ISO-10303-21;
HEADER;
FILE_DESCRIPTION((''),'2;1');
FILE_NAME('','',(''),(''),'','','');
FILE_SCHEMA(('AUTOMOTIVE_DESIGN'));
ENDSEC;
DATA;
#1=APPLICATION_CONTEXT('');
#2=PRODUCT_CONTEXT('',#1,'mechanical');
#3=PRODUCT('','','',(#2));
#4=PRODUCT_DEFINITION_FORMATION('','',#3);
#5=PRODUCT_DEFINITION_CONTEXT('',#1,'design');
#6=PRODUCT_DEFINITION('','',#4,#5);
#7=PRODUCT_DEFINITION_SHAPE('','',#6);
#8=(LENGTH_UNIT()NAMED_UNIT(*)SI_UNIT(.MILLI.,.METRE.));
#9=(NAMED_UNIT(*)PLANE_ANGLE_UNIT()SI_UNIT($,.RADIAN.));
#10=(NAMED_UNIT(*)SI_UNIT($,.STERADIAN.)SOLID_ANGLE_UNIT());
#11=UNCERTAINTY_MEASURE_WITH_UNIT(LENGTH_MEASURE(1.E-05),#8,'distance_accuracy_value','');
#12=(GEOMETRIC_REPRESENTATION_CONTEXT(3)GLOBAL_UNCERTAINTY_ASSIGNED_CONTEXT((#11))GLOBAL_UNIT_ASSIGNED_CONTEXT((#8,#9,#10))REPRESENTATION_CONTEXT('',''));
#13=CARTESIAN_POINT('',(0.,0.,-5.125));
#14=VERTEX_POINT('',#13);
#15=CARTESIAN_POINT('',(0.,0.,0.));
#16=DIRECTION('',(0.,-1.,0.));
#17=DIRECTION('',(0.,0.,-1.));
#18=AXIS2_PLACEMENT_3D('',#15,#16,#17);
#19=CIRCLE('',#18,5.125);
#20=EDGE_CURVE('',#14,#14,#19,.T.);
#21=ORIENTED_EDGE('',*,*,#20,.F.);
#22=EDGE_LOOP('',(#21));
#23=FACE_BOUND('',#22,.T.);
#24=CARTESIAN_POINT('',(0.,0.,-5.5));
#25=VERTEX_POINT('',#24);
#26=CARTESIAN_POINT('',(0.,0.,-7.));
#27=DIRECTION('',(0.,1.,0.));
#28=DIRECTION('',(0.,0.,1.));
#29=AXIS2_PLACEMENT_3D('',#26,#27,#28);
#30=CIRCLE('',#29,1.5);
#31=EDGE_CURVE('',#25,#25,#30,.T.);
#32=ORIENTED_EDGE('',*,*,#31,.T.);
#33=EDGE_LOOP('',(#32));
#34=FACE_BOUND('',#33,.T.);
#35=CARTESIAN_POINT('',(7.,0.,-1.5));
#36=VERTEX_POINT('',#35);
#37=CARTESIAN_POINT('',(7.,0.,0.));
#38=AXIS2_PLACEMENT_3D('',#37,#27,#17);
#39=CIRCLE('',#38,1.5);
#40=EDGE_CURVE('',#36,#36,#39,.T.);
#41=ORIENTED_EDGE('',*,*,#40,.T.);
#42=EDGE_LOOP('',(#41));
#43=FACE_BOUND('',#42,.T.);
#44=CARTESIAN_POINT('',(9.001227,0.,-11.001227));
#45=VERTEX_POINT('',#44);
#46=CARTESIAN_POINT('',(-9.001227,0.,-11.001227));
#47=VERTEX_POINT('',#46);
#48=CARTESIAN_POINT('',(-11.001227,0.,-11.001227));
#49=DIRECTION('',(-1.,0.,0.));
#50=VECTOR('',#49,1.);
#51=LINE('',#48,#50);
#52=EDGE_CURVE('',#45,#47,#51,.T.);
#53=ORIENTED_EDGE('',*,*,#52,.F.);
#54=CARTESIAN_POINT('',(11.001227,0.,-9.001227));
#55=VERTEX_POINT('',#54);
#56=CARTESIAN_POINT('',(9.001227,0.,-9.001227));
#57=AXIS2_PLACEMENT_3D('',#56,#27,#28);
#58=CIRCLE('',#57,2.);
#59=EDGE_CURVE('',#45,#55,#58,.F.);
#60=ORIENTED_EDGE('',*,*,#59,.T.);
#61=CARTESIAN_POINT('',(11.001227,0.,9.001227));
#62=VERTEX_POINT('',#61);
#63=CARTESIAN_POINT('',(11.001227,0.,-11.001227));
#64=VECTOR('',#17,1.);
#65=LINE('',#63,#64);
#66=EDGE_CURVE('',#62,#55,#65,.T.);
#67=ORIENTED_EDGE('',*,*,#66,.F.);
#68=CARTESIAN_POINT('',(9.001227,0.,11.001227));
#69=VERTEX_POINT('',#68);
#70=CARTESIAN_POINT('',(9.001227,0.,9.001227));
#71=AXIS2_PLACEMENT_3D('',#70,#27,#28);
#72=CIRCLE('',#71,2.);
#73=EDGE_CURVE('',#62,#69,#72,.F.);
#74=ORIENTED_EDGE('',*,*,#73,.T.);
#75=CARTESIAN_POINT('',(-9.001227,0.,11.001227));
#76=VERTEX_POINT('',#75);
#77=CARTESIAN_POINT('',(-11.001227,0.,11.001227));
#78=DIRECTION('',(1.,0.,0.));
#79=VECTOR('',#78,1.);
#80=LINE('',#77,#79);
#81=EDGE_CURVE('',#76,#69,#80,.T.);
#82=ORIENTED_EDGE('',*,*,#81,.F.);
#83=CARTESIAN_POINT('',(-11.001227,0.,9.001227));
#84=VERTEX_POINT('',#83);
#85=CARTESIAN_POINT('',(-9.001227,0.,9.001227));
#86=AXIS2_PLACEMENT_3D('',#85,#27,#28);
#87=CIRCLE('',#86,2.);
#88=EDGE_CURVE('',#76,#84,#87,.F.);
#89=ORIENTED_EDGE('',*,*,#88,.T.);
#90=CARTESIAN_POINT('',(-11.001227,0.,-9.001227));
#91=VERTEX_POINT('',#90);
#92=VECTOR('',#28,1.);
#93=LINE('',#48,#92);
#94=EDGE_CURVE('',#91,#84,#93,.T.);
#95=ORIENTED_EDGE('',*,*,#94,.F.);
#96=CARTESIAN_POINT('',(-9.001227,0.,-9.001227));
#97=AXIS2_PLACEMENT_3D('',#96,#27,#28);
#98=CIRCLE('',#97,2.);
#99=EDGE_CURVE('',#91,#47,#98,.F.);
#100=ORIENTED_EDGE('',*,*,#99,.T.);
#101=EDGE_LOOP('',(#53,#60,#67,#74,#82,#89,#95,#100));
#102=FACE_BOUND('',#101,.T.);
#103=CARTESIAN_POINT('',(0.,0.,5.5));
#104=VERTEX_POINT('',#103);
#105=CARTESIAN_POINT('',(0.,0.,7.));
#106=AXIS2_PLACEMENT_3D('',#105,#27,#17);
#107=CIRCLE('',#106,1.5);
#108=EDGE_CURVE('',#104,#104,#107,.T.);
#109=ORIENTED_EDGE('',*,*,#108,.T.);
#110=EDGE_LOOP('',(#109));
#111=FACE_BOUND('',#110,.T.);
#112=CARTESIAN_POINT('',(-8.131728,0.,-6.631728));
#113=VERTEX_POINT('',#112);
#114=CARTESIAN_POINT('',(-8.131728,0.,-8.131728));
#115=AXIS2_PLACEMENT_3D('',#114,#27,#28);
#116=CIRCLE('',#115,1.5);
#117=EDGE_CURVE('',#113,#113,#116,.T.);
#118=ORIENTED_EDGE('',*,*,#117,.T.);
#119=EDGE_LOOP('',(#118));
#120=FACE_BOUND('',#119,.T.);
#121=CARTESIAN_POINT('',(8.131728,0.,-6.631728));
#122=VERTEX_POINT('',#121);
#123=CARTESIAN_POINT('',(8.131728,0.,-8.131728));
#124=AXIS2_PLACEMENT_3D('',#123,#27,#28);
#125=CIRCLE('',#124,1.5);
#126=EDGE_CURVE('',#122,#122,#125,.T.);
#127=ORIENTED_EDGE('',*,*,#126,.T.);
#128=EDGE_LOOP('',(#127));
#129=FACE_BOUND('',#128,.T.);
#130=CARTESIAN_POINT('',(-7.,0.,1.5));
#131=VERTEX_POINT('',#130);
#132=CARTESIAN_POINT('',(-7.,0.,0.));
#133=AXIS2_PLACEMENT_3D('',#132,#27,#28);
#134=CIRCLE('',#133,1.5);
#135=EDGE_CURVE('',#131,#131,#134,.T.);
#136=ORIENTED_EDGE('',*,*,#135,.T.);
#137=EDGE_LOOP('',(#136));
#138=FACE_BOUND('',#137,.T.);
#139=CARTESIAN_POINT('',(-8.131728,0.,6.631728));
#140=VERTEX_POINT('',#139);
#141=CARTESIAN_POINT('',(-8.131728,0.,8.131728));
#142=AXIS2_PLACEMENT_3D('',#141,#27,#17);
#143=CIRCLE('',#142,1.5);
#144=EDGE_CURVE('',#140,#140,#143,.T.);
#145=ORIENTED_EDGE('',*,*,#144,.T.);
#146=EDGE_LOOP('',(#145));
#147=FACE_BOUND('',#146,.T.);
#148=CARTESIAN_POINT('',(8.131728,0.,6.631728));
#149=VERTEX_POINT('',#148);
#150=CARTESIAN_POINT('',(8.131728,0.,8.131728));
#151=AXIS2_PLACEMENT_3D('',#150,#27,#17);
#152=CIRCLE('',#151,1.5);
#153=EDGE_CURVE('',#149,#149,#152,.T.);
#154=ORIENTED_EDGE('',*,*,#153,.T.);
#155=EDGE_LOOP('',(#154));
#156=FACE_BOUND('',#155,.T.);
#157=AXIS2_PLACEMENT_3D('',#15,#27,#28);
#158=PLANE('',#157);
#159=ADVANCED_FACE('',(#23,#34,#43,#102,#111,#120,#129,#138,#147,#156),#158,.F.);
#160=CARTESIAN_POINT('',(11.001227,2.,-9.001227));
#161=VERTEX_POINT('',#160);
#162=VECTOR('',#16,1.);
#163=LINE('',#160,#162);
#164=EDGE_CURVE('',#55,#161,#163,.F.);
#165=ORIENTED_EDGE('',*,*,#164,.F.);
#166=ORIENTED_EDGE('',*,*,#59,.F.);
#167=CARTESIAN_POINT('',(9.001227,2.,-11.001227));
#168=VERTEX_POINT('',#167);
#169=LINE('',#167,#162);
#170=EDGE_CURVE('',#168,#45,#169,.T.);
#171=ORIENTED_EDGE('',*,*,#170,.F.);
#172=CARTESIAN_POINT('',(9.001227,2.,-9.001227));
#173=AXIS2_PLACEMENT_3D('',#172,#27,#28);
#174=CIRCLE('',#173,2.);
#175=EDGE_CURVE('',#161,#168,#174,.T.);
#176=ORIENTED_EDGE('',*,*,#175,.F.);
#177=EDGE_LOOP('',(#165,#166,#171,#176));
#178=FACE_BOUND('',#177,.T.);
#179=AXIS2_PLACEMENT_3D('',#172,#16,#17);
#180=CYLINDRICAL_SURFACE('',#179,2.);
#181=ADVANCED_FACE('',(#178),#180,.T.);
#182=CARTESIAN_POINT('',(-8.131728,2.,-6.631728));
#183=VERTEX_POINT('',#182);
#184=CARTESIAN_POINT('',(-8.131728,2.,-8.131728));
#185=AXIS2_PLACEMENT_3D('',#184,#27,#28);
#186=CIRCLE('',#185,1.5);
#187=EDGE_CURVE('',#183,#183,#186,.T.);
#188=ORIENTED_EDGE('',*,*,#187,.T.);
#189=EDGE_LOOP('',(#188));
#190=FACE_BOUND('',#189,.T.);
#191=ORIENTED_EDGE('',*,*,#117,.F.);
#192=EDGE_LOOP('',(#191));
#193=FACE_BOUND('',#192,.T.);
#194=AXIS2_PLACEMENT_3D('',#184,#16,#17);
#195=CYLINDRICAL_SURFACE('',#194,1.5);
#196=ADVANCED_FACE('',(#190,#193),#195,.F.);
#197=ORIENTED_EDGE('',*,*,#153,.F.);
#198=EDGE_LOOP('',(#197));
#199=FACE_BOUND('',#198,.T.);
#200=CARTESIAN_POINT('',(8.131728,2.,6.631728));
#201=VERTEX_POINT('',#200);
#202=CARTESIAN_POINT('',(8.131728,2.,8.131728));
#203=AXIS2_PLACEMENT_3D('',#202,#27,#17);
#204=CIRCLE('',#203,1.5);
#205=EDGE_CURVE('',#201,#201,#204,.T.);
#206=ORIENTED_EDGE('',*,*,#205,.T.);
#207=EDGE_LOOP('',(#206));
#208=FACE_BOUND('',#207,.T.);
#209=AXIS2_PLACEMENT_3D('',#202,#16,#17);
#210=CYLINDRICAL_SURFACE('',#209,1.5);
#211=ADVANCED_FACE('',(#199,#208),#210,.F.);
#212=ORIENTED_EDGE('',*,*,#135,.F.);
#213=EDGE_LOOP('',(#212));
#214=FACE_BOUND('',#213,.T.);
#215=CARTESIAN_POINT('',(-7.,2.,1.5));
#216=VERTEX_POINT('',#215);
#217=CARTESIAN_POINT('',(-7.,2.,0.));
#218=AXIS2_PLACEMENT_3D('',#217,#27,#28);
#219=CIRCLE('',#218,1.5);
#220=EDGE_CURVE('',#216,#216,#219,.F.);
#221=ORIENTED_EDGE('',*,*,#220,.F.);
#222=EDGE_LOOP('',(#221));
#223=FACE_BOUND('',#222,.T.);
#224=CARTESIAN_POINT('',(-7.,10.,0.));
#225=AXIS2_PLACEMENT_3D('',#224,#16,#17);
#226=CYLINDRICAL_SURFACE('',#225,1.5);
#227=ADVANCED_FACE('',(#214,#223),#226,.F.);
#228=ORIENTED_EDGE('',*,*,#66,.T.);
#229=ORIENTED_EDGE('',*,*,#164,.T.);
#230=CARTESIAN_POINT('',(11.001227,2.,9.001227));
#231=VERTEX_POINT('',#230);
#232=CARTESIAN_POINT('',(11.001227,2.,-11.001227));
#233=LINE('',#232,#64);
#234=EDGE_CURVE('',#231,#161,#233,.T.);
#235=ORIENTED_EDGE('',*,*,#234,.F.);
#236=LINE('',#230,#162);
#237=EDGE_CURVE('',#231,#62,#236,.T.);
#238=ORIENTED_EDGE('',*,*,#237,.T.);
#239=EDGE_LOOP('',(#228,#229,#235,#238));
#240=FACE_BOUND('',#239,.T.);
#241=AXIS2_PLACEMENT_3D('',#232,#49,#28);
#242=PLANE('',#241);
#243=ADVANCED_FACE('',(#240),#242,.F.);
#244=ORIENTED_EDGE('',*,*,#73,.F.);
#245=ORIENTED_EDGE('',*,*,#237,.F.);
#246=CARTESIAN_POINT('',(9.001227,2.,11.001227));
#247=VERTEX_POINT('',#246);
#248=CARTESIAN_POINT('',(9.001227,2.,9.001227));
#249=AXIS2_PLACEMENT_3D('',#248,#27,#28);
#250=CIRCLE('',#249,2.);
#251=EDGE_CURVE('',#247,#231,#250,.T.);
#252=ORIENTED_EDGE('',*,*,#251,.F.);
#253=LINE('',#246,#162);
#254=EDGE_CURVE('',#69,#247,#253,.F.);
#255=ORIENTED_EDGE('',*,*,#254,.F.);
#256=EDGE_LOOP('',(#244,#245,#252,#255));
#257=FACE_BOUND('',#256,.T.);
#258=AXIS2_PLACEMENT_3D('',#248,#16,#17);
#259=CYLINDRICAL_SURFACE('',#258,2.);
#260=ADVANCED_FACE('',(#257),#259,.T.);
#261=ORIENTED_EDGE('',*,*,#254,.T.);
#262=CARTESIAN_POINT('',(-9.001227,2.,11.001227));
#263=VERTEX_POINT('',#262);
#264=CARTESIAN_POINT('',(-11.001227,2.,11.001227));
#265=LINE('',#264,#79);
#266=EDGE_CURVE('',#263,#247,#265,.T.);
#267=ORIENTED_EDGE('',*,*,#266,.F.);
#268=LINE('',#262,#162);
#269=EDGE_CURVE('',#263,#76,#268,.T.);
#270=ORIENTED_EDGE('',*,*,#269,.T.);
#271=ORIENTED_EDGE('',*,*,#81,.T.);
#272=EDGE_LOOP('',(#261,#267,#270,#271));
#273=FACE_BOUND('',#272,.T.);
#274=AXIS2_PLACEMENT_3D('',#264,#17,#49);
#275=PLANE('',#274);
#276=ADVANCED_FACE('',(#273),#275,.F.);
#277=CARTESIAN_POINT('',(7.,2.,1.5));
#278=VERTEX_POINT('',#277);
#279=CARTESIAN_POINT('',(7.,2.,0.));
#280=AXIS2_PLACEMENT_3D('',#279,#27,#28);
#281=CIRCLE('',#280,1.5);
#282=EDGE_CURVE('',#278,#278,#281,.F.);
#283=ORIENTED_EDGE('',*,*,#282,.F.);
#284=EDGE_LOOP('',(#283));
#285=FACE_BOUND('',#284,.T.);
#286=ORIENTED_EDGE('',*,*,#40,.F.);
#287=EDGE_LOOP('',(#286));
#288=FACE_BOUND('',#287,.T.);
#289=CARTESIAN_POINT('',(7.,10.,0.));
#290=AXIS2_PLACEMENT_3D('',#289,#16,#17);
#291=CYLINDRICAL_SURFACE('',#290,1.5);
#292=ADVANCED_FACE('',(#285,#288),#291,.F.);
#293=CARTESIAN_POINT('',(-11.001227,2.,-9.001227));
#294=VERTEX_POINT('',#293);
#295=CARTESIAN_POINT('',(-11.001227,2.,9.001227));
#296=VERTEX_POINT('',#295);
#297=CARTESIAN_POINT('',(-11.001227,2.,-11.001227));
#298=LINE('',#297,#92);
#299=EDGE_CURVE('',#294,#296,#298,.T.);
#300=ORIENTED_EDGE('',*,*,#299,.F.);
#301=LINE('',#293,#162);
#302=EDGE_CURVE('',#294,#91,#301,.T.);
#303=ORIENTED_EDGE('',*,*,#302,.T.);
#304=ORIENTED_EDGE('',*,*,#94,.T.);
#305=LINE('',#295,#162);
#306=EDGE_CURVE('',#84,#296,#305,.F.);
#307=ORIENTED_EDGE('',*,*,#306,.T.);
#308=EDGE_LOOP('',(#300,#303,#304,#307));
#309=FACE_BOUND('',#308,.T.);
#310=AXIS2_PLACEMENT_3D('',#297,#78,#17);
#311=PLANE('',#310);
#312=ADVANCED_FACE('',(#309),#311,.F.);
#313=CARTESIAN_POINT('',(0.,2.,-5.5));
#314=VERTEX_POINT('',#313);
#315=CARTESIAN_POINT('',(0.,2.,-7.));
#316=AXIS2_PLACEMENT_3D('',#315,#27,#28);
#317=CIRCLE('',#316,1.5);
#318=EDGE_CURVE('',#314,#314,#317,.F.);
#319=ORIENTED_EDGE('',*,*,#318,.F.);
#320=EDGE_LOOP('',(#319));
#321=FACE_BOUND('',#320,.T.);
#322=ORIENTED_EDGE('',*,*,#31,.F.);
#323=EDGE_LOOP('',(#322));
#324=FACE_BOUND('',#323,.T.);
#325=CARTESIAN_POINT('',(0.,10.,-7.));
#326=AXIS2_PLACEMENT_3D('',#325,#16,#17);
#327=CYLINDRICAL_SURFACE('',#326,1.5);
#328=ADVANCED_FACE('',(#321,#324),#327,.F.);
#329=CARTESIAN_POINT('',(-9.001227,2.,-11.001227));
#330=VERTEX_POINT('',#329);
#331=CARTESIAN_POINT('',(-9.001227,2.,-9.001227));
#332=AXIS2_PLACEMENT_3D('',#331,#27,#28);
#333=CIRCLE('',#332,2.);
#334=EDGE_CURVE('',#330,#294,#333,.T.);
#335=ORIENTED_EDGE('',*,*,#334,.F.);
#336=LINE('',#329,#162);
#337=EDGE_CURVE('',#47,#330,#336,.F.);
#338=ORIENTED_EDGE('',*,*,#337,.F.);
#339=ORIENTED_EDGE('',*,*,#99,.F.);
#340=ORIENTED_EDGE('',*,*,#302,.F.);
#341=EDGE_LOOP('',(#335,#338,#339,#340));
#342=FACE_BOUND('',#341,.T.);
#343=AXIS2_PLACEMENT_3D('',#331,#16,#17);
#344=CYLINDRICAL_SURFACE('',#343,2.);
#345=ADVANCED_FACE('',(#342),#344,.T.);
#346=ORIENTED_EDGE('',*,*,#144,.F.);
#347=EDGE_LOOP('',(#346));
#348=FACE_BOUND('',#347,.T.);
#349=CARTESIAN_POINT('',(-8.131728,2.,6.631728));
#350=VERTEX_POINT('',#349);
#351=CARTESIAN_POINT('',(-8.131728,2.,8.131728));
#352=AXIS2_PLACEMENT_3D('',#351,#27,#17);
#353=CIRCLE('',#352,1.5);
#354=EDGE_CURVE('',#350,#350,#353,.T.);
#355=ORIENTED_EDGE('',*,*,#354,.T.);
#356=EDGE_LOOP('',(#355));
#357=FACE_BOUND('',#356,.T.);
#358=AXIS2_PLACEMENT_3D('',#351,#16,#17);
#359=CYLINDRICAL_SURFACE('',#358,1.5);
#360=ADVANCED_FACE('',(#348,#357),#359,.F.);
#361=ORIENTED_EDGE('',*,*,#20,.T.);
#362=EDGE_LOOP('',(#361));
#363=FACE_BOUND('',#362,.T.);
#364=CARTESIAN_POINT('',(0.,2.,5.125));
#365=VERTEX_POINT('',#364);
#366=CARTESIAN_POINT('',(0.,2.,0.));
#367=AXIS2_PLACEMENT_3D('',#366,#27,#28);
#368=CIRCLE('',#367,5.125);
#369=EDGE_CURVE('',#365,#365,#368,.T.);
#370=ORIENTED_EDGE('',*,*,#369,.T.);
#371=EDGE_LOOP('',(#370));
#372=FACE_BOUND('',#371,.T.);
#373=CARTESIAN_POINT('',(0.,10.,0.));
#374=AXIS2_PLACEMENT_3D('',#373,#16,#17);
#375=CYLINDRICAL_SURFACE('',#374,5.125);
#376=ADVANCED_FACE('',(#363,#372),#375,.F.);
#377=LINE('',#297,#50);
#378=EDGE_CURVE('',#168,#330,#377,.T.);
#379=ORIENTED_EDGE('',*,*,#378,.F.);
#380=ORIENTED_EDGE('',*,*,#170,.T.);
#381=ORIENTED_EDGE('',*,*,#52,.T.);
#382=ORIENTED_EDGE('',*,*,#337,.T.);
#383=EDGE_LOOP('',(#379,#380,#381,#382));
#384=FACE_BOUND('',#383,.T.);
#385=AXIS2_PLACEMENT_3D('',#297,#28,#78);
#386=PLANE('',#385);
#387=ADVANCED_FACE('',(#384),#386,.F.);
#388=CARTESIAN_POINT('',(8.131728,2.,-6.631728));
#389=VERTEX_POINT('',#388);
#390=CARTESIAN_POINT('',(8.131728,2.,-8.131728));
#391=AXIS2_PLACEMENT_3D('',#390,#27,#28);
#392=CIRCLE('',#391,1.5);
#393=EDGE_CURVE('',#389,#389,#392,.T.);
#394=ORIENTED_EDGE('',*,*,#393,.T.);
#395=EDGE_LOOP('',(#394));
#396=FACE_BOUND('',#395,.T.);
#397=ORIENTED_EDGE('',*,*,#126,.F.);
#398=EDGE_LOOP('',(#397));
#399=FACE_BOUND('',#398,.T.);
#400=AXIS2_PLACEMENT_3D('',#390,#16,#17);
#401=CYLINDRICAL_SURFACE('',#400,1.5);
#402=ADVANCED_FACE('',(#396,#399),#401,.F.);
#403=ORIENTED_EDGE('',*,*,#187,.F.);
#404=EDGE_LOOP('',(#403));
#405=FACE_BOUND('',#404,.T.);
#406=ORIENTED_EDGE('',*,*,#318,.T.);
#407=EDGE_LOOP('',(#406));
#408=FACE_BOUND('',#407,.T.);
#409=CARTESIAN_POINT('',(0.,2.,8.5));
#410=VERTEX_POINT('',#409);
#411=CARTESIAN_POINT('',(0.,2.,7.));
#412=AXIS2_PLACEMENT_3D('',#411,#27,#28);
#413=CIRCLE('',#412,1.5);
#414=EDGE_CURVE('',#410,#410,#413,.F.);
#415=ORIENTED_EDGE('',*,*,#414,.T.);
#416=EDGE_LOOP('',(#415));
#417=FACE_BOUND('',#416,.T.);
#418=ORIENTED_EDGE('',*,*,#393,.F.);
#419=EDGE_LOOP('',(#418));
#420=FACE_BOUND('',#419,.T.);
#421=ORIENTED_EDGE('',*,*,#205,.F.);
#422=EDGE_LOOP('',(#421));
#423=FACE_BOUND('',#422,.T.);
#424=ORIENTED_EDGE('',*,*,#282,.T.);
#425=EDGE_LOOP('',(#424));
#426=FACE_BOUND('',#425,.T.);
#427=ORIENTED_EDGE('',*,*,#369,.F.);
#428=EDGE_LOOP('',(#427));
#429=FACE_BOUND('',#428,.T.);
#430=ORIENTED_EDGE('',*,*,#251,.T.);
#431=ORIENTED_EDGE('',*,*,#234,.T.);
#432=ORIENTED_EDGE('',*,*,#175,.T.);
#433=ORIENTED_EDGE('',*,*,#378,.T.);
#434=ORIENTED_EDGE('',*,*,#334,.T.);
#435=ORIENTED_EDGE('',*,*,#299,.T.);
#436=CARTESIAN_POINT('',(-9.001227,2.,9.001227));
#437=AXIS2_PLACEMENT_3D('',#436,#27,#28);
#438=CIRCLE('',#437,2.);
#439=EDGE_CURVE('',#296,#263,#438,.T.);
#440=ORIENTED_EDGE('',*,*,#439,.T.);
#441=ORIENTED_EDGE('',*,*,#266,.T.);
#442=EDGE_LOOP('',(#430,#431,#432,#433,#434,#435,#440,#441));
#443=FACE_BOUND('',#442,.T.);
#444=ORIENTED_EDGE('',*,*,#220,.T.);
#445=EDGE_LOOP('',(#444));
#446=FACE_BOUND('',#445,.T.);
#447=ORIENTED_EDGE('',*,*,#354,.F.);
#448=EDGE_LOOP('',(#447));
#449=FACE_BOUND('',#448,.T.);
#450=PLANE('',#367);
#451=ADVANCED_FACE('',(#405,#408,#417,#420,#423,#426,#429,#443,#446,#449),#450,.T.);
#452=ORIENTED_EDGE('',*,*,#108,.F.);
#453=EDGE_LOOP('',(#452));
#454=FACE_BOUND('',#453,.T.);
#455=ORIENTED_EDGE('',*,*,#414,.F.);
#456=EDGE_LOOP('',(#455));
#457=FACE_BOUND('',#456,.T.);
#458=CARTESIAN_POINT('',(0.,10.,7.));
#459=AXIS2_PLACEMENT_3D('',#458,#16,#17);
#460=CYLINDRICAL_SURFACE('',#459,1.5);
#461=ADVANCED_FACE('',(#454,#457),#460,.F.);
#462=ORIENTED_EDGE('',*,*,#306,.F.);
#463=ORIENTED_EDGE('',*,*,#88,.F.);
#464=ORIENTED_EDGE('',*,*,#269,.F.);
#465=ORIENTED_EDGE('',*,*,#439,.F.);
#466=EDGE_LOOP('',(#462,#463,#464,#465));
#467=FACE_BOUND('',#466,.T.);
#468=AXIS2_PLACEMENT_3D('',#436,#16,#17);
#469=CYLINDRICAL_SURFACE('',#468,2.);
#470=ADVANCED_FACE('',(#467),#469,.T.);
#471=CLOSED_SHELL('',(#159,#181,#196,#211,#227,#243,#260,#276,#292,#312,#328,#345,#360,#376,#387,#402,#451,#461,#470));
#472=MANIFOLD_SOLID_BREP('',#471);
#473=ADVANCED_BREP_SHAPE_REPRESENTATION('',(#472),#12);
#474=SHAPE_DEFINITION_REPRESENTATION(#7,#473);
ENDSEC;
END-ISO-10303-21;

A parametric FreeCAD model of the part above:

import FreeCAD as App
import Part
import Sketcher


def edges_at(feature, points):
    """Names of the edges that pass closest to the given points."""
    edges = feature.Shape.Edges
    near = lambda p: min(range(len(edges)), key=lambda i: edges[i].distToShape(Part.Vertex(*p))[0])
    return sorted({f"Edge{near(p) + 1}" for p in points})


def add_polygon(sketch, points):
    """Adds a closed chain of lines whose ends are joined by coincident constraints."""
    first, n = sketch.GeometryCount, len(points)
    for a, b in zip(points, points[1:] + points[:1]):
        sketch.addGeometry(Part.LineSegment(App.Vector(*a, 0), App.Vector(*b, 0)), False)
    for i in range(n):
        sketch.addConstraint(Sketcher.Constraint("Coincident", first + i, 2, first + (i + 1) % n, 1))

doc = App.newDocument("Part")
body = doc.addObject("PartDesign::Body", "Body")

# Sketch on XZ plane
sketch1 = body.newObject("Sketcher::SketchObject", "Sketch")
sketch1.AttachmentSupport = (doc.getObject("XZ_Plane"), [""])
sketch1.MapMode = "FlatFace"
add_polygon(sketch1, [(-11, -11), (-11, 11), (11, 11), (11, -11)])  # lines 0-3
sketch1.addGeometry(Part.Circle(App.Vector(-8.1, 8.1, 0), App.Vector(0, 0, 1), 1.5), False)  # 4
sketch1.addGeometry(Part.Circle(App.Vector(8.1, 8.1, 0), App.Vector(0, 0, 1), 1.5), False)  # 5
sketch1.addGeometry(Part.Circle(App.Vector(-8.1, -8.1, 0), App.Vector(0, 0, 1), 1.5), False)  # 6
sketch1.addGeometry(Part.Circle(App.Vector(8.1, -8.1, 0), App.Vector(0, 0, 1), 1.5), False)  # 7
sketch1.addConstraint([
    Sketcher.Constraint("Vertical", 0),
    Sketcher.Constraint("Horizontal", 1),
    Sketcher.Constraint("Vertical", 2),
    Sketcher.Constraint("Horizontal", 3),
    Sketcher.Constraint("Equal", 4, 5),
    Sketcher.Constraint("Equal", 5, 6),
    Sketcher.Constraint("Equal", 6, 7),
    Sketcher.Constraint("Symmetric", 5, 3, 6, 3, -1, 1),
    Sketcher.Constraint("Symmetric", 4, 3, 7, 3, -1, 1),
    Sketcher.Constraint("Symmetric", 0, 2, 2, 2, -1, 1),
    Sketcher.Constraint("Symmetric", 4, 3, 5, 3, -2),
    Sketcher.Constraint("Equal", 3, 0),
    Sketcher.Constraint("Diameter", 4, 3.0),
    Sketcher.Constraint("DistanceX", 0, 2, 4, 3, 2.869499),
    Sketcher.Constraint("DistanceY", 4, 3, 0, 2, 2.869499),
    Sketcher.Constraint("DistanceX", 1, 1, 1, 2, 22.002454),
])
pad1 = body.newObject("PartDesign::Pad", "Pad")
pad1.Profile = sketch1
pad1.Length = 2
pad1.Reversed = True
doc.recompute()

fillet = body.newObject("PartDesign::Fillet", "Fillet")
fillet.Base = (pad1, edges_at(pad1, [
    (11.001, 1, 11.001),
    (-11.001, 1, 11.001),
    (-11.001, 1, -11.001),
    (11.001, 1, -11.001),
]))
fillet.Radius = 2

# Sketch on XZ plane
sketch2 = body.newObject("Sketcher::SketchObject", "Sketch001")
sketch2.AttachmentSupport = (doc.getObject("XZ_Plane"), [""])
sketch2.MapMode = "FlatFace"
sketch2.addGeometry([
    Part.Circle(App.Vector(-7, 0, 0), App.Vector(0, 0, 1), 1.5),
    Part.Circle(App.Vector(7, 0, 0), App.Vector(0, 0, 1), 1.5),
    Part.Circle(App.Vector(0, -7, 0), App.Vector(0, 0, 1), 1.5),
    Part.Circle(App.Vector(0, 7, 0), App.Vector(0, 0, 1), 1.5),
], False)
sketch2.addConstraint([
    Sketcher.Constraint("Equal", 0, 1),
    Sketcher.Constraint("Equal", 1, 2),
    Sketcher.Constraint("Equal", 2, 3),
    Sketcher.Constraint("Symmetric", 0, 3, 1, 3, -1, 1),
    Sketcher.Constraint("Symmetric", 2, 3, 3, 3, -1, 1),
    Sketcher.Constraint("PointOnObject", 0, 3, -1),
    Sketcher.Constraint("PointOnObject", 2, 3, -2),
    Sketcher.Constraint("Diameter", 0, 3.0),
    Sketcher.Constraint("DistanceX", 0, 3, -1, 1, 7.0),
    Sketcher.Constraint("DistanceY", 2, 3, -1, 1, 7.0),
])
pocket1 = body.newObject("PartDesign::Pocket", "Pocket")
pocket1.Profile = sketch2
pocket1.Length = 10

# Sketch on XZ plane
sketch3 = body.newObject("Sketcher::SketchObject", "Sketch002")
sketch3.AttachmentSupport = (doc.getObject("XZ_Plane"), [""])
sketch3.MapMode = "FlatFace"
sketch3.addGeometry(Part.Circle(App.Vector(0, 0, 0), App.Vector(0, 0, 1), 5), False)
sketch3.addConstraint([
    Sketcher.Constraint("Coincident", 0, 3, -1, 1),
    Sketcher.Constraint("Diameter", 0, 10.25),
])
pocket2 = body.newObject("PartDesign::Pocket", "Pocket001")
pocket2.Profile = sketch3
pocket2.Length = 10

doc.recompute()
